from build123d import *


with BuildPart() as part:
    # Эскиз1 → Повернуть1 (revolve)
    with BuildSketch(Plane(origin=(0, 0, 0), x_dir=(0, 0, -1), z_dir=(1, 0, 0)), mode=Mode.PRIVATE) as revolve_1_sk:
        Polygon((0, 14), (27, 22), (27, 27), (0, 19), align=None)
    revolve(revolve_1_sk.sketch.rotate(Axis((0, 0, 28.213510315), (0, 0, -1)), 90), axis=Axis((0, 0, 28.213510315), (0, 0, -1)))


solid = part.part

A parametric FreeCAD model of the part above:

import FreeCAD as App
import Part
import Sketcher
Q = App.Units.Quantity

doc = App.newDocument("Part")
params = doc.addObject("Spreadsheet::Sheet", "Params")
for row, (alias, value) in enumerate([
    ("sketch1_width", "5 mm"),
    ("revolution_angle", "360 deg"),
], start=1):
    params.set(f"A{row}", alias)
    params.set(f"B{row}", "=" + value)
    params.setAlias(f"B{row}", alias)

body = doc.addObject("PartDesign::Body", "Body")

# Sketch on YZ plane
sketch1 = body.newObject("Sketcher::SketchObject", "Sketch")
sketch1.AttachmentSupport = (doc.getObject("YZ_Plane"), [""])
sketch1.MapMode = "FlatFace"
sketch1.addGeometry([
    Part.LineSegment(App.Vector(14, 0, 0), App.Vector(22, -27, 0)),
    Part.LineSegment(App.Vector(22, -27, 0), App.Vector(27, -27, 0)),
    Part.LineSegment(App.Vector(27, -27, 0), App.Vector(19, 0, 0)),
    Part.LineSegment(App.Vector(19, 0, 0), App.Vector(14, 0, 0)),
], False)
sketch1.addConstraint([
    Sketcher.Constraint("Coincident", 0, 2, 1, 1),
    Sketcher.Constraint("Coincident", 1, 2, 2, 1),
    Sketcher.Constraint("Coincident", 2, 2, 3, 1),
    Sketcher.Constraint("Coincident", 3, 2, 0, 1),
    Sketcher.Constraint("Horizontal", 1),
    Sketcher.Constraint("Horizontal", 3),
    Sketcher.Constraint("PointOnObject", 2, 2, -1),
    Sketcher.Constraint("Parallel", 0, 2),
    Sketcher.Constraint("DistanceX", 1, 1, 1, 2, Q("5 mm")),
    Sketcher.Constraint("DistanceX", -1, 1, 0, 2, Q("22 mm")),
    Sketcher.Constraint("DistanceY", 0, 2, -1, 1, Q("27 mm")),
    Sketcher.Constraint("DistanceX", -1, 1, 2, 2, Q("19 mm")),
])
sketch1.setExpression("Constraints[8]", "Params.sketch1_width")
revolution = body.newObject("PartDesign::Revolution", "Revolution")
revolution.Profile = sketch1
revolution.ReferenceAxis = (sketch1, ["V_Axis"])
revolution.setExpression("Angle", "Params.revolution_angle")

doc.recompute()
